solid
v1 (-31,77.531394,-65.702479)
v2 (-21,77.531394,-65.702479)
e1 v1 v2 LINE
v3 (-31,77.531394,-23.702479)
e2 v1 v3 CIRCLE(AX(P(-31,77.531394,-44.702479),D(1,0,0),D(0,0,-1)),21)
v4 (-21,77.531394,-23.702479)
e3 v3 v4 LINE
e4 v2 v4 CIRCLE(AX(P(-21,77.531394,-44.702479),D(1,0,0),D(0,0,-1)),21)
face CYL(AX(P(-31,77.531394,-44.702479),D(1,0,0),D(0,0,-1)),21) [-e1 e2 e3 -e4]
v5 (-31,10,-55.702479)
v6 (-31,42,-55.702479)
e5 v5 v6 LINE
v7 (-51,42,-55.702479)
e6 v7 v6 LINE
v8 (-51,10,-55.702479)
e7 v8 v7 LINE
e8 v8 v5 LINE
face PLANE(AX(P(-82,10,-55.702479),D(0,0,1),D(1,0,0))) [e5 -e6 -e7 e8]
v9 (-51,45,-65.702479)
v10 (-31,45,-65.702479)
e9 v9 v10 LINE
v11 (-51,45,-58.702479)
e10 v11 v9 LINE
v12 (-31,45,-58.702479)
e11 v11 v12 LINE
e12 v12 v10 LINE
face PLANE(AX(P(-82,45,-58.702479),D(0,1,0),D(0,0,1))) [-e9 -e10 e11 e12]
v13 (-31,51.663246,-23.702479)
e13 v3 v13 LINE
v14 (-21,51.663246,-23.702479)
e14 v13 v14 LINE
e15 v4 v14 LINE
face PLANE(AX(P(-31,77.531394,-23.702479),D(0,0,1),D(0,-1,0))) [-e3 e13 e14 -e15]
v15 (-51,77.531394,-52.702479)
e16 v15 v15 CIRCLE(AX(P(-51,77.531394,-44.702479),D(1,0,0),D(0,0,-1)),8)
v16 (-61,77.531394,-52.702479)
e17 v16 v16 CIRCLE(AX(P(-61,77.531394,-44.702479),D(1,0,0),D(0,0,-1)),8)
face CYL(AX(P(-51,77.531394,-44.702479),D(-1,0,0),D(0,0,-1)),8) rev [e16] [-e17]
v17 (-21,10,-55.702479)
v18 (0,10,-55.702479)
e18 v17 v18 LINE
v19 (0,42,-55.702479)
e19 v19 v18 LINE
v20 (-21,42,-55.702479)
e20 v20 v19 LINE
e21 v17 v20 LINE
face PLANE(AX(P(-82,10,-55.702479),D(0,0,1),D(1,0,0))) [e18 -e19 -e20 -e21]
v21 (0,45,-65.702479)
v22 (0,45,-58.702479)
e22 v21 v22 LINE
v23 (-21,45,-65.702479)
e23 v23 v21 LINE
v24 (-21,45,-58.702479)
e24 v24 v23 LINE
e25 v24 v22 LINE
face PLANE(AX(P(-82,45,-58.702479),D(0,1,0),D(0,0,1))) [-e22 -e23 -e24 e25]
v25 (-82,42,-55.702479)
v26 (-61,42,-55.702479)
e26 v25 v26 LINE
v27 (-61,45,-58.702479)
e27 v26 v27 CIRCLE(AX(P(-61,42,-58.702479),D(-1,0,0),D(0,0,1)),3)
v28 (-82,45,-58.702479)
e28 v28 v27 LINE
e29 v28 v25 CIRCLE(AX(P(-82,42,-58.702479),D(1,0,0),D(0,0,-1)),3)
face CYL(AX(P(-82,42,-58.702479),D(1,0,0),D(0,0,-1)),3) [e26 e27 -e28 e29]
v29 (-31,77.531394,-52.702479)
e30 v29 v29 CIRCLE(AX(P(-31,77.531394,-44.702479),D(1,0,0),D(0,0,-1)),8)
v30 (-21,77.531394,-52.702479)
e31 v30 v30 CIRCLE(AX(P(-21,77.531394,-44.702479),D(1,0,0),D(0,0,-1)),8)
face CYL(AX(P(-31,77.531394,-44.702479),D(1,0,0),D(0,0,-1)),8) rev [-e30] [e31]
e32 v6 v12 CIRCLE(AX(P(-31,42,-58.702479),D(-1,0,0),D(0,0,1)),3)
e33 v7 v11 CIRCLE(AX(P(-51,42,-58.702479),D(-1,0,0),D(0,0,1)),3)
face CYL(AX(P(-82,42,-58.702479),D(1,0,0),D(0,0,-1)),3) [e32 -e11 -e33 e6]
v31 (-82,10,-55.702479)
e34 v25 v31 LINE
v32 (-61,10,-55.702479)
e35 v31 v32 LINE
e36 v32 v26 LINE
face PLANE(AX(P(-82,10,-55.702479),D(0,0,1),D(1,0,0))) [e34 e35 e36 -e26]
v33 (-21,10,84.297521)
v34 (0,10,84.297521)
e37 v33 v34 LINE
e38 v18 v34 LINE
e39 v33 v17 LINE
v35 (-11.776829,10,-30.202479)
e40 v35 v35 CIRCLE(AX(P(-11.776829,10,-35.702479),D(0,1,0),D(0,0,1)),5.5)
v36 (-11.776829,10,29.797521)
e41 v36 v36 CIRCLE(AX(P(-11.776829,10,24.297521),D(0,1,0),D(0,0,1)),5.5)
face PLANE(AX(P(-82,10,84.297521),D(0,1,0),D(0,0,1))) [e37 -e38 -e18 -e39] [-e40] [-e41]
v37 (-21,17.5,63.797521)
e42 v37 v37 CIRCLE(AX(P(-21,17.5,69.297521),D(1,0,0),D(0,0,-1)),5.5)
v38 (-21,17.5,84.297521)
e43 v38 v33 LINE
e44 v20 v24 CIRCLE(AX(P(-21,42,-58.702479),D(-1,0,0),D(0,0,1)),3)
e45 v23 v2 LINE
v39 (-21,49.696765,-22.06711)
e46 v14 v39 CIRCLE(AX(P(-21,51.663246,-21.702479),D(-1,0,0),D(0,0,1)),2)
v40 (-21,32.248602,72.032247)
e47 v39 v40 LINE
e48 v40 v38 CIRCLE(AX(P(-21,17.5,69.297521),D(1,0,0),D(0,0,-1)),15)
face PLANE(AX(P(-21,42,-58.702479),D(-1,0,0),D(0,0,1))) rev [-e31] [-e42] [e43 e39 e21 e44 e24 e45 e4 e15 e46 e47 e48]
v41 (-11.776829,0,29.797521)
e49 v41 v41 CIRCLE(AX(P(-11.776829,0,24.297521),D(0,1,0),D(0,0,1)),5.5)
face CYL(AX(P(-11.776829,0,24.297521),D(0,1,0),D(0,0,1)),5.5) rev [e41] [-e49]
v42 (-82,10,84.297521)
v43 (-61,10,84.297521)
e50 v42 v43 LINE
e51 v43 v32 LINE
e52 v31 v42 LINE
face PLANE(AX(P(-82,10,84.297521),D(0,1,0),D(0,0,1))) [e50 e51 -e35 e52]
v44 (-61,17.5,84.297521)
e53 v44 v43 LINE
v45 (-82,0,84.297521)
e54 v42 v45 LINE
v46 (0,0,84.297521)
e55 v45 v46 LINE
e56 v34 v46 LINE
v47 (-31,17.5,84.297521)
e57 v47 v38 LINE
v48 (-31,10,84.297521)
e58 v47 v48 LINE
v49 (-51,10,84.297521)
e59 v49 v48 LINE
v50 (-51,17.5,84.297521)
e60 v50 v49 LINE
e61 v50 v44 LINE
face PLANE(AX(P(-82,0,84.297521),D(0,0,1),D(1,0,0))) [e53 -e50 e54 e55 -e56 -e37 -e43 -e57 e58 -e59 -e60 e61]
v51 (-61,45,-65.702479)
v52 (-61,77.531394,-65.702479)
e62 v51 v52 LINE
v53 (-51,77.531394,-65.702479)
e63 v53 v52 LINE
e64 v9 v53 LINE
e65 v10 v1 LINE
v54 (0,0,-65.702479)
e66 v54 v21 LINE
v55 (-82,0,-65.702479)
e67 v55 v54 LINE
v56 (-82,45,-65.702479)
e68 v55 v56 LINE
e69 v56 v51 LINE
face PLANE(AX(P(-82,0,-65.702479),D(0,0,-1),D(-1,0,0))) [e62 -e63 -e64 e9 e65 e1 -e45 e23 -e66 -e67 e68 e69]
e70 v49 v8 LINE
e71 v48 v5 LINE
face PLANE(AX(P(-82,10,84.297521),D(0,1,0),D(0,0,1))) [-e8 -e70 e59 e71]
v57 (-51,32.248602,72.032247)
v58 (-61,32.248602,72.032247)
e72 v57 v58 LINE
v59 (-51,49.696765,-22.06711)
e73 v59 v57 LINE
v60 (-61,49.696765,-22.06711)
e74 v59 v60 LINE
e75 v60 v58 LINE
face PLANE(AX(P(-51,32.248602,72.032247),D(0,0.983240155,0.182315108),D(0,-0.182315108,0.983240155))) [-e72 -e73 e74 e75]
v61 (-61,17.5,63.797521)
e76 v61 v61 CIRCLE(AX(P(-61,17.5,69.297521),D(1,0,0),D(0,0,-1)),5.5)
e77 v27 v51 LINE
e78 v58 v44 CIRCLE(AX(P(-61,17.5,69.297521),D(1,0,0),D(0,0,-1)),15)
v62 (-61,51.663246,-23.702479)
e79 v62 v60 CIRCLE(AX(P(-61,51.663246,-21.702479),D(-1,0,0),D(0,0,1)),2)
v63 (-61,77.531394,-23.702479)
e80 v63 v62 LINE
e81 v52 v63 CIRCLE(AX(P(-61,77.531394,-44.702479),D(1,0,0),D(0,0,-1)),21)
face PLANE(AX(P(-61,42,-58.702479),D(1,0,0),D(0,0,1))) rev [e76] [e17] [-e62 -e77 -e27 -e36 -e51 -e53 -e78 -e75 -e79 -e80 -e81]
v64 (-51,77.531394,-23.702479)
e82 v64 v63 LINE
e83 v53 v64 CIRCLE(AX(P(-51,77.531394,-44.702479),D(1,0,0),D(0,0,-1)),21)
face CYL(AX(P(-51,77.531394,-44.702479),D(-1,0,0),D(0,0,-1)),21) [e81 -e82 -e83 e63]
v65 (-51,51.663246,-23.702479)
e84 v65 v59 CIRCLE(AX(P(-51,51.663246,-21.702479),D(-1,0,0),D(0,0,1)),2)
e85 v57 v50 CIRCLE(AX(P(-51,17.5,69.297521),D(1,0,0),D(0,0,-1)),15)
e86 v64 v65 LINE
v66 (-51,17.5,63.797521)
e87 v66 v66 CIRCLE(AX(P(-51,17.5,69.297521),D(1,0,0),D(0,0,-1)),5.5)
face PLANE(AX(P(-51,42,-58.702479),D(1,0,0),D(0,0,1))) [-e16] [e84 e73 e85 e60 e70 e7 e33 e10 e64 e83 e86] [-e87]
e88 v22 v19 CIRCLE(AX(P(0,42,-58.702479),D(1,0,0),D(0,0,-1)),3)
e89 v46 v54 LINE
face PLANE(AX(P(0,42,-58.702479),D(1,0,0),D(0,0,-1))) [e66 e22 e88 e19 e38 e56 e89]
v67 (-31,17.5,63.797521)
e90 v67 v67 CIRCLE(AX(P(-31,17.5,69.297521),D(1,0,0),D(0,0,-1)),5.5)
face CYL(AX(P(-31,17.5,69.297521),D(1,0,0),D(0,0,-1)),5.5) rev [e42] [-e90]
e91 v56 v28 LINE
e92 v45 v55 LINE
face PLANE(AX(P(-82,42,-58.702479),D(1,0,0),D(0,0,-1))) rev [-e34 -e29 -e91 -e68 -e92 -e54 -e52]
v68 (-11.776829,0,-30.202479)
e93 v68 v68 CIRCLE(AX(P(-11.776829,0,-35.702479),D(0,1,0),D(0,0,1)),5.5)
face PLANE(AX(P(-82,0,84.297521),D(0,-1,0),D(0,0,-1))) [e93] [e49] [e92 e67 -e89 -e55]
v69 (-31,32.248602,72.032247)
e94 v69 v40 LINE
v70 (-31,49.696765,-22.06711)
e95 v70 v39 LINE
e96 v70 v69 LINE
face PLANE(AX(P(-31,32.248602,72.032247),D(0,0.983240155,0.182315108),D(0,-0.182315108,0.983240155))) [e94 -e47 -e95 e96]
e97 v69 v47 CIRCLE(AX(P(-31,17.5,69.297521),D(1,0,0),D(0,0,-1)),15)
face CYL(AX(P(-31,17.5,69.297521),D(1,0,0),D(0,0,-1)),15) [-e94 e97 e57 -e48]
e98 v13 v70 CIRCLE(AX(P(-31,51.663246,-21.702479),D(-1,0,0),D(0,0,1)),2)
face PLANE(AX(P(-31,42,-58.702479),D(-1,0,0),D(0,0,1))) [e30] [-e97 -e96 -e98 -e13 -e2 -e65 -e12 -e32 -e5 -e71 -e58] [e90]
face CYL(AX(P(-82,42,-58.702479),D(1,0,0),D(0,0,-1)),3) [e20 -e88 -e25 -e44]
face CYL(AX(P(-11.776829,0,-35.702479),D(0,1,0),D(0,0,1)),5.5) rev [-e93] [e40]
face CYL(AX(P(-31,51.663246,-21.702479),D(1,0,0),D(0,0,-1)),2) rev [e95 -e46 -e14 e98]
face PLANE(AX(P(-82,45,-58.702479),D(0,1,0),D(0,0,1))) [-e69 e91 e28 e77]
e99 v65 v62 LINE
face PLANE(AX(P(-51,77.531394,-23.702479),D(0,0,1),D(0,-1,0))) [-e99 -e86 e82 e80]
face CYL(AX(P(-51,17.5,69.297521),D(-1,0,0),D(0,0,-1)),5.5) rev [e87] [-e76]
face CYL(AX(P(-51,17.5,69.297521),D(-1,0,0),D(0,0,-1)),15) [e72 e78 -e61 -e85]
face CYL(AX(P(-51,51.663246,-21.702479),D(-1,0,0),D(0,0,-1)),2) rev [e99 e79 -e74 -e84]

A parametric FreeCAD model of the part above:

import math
import FreeCAD as App
import Part
import Sketcher
Q = App.Units.Quantity

doc = App.newDocument("Part")
body = doc.addObject("PartDesign::Body", "Body")

# Sketch on YZ plane
sketch1 = doc.addObject("Sketcher::SketchObject", "Sketch")
body.addObject(sketch1)
sketch1.AttachmentSupport = (doc.YZ_Plane, [""])
sketch1.MapMode = "FlatFace"
sketch1.addGeometry([
    Part.LineSegment(App.Vector(0, 84.3, 0), App.Vector(0, -65.7, 0)),  # 0
    Part.LineSegment(App.Vector(0, -65.7, 0), App.Vector(45, -65.7, 0)),  # 1
    Part.LineSegment(App.Vector(45, -65.7, 0), App.Vector(45, -58.7, 0)),  # 2
    Part.ArcOfCircle(Part.Circle(App.Vector(42, -58.7, 0), App.Vector(0, 0, 1), 3), math.radians(0), math.radians(90)),  # 3
    Part.LineSegment(App.Vector(42, -55.7, 0), App.Vector(10, -55.7, 0)),  # 4
    Part.LineSegment(App.Vector(10, -55.7, 0), App.Vector(10, 84.3, 0)),  # 5
    Part.LineSegment(App.Vector(10, 84.3, 0), App.Vector(0, 84.3, 0)),  # 6
], False)
sketch1.addConstraint([
    Sketcher.Constraint("Coincident", 0, 2, 1, 1),
    Sketcher.Constraint("Coincident", 1, 2, 2, 1),
    Sketcher.Constraint("Tangent", 2, 2, 3, 1),
    Sketcher.Constraint("Tangent", 3, 2, 4, 1),
    Sketcher.Constraint("Coincident", 4, 2, 5, 1),
    Sketcher.Constraint("Coincident", 5, 2, 6, 1),
    Sketcher.Constraint("Coincident", 6, 2, 0, 1),
    Sketcher.Constraint("Vertical", 0),
    Sketcher.Constraint("Horizontal", 1),
    Sketcher.Constraint("Vertical", 2),
    Sketcher.Constraint("Horizontal", 4),
    Sketcher.Constraint("Vertical", 5),
    Sketcher.Constraint("Horizontal", 6),
    Sketcher.Constraint("PointOnObject", 0, 2, -2),
    Sketcher.Constraint("Radius", 3, Q("3 mm")),
    Sketcher.Constraint("DistanceX", 1, 1, 1, 2, Q("45 mm")),
    Sketcher.Constraint("DistanceX", 4, 2, 4, 1, Q("32 mm")),
    Sketcher.Constraint("DistanceY", 0, 2, 0, 1, Q("150 mm")),
    Sketcher.Constraint("DistanceY", 2, 1, 2, 2, Q("7 mm")),
    Sketcher.Constraint("DistanceY", 3, 3, -1, 1, Q("58.702479 mm")),
])
pad1 = doc.addObject("PartDesign::Pad", "Pad")
body.addObject(pad1)
pad1.Profile = sketch1
pad1.Length = 82
pad1.Reversed = True

# Sketch on YZ plane
sketch2 = doc.addObject("Sketcher::SketchObject", "Sketch001")
body.addObject(sketch2)
sketch2.AttachmentSupport = (doc.YZ_Plane, [""])
sketch2.MapMode = "FlatFace"
sketch2.AttachmentOffset = App.Placement(App.Vector(0, 0, -21), App.Rotation())
sketch2.addGeometry([
    Part.LineSegment(App.Vector(45, -65.7, 0), App.Vector(77.5, -65.7, 0)),  # 0
    Part.ArcOfCircle(Part.Circle(App.Vector(77.5, -44.7, 0), App.Vector(0, 0, 1), 21), math.radians(-90), math.radians(90)),  # 1
    Part.LineSegment(App.Vector(77.5, -23.7, 0), App.Vector(51.7, -23.7, 0)),  # 2
    Part.ArcOfCircle(Part.Circle(App.Vector(51.7, -21.7, 0), App.Vector(0, 0, 1), 2), math.radians(-169), math.radians(-90)),  # 3
    Part.LineSegment(App.Vector(49.7, -22.1, 0), App.Vector(32.2, 72, 0)),  # 4
    Part.ArcOfCircle(Part.Circle(App.Vector(17.5, 69.3, 0), App.Vector(0, 0, 1), 15), math.radians(11), math.radians(90)),  # 5
    Part.LineSegment(App.Vector(17.5, 84.3, 0), App.Vector(10, 84.3, 0)),  # 6
    Part.LineSegment(App.Vector(10, 84.3, 0), App.Vector(10, -55.7, 0)),  # 7
    Part.LineSegment(App.Vector(10, -55.7, 0), App.Vector(42, -55.7, 0)),  # 8
    Part.ArcOfCircle(Part.Circle(App.Vector(42, -58.7, 0), App.Vector(0, 0, 1), 3), math.radians(0), math.radians(90)),  # 9
    Part.LineSegment(App.Vector(45, -58.7, 0), App.Vector(45, -65.7, 0)),  # 10
    Part.Circle(App.Vector(17.5, 69.3, 0), App.Vector(0, 0, 1), 5.5),  # 11
    Part.Circle(App.Vector(77.5, -44.7, 0), App.Vector(0, 0, 1), 8),  # 12
], False)
sketch2.addConstraint([
    Sketcher.Constraint("Tangent", 0, 2, 1, 1),
    Sketcher.Constraint("Tangent", 1, 2, 2, 1),
    Sketcher.Constraint("Tangent", 2, 2, 3, 2),
    Sketcher.Constraint("Tangent", 3, 1, 4, 1),
    Sketcher.Constraint("Tangent", 4, 2, 5, 1),
    Sketcher.Constraint("Tangent", 5, 2, 6, 1),
    Sketcher.Constraint("Coincident", 6, 2, 7, 1),
    Sketcher.Constraint("Coincident", 7, 2, 8, 1),
    Sketcher.Constraint("Tangent", 8, 2, 9, 2),
    Sketcher.Constraint("Tangent", 9, 1, 10, 1),
    Sketcher.Constraint("Coincident", 10, 2, 0, 1),
    Sketcher.Constraint("Horizontal", 0),
    Sketcher.Constraint("Horizontal", 2),
    Sketcher.Constraint("Horizontal", 6),
    Sketcher.Constraint("Vertical", 7),
    Sketcher.Constraint("Horizontal", 8),
    Sketcher.Constraint("Vertical", 10),
    Sketcher.Constraint("Coincident", 11, 3, 5, 3),
    Sketcher.Constraint("Coincident", 12, 3, 1, 3),
    Sketcher.Constraint("Diameter", 11, Q("11 mm")),
    Sketcher.Constraint("Diameter", 12, Q("16 mm")),
    Sketcher.Constraint("Radius", 1, Q("21 mm")),
    Sketcher.Constraint("Radius", 3, Q("2 mm")),
    Sketcher.Constraint("Radius", 5, Q("15 mm")),
    Sketcher.Constraint("Radius", 9, Q("3 mm")),
    Sketcher.Constraint("DistanceX", 8, 1, 8, 2, Q("32 mm")),
    Sketcher.Constraint("DistanceY", 7, 2, 7, 1, Q("140 mm")),
    Sketcher.Constraint("DistanceY", 10, 2, 10, 1, Q("7 mm")),
    Sketcher.Constraint("DistanceX", 6, 2, 6, 1, Q("7.5 mm")),
    Sketcher.Constraint("DistanceX", -1, 1, 9, 3, Q("42 mm")),
    Sketcher.Constraint("DistanceX", 2, 2, 2, 1, Q("25.868149 mm")),
    Sketcher.Constraint("Distance", 4, Q("95.70333 mm")),
    Sketcher.Constraint("DistanceY", 1, 3, -1, 1, Q("44.702479 mm")),
])
pad2 = doc.addObject("PartDesign::Pad", "Pad001")
body.addObject(pad2)
pad2.Profile = sketch2
pad2.Length = 10
pad2.Reversed = True
body2 = doc.addObject("PartDesign::Body", "Body001")
doc.recompute()

body2.BaseFeature = body
doc.recompute()

mirroring = doc.addObject("Part::Mirroring", "Mirroring")
mirroring.Source = body
mirroring.Base = App.Vector(-41, 0, 0)
mirroring.Normal = App.Vector(1, 0, 0)
body3 = doc.addObject("PartDesign::Body", "Body002")
body3.BaseFeature = mirroring
boolean = doc.addObject("PartDesign::Boolean", "Boolean")
body2.addObject(boolean)
boolean.Type = "Fuse"
boolean.addObjects([body3])
doc.recompute()

# Sketch on XZ plane
sketch3 = doc.addObject("Sketcher::SketchObject", "Sketch002")
body2.addObject(sketch3)
sketch3.AttachmentSupport = (doc.getObject("XZ_Plane001"), [""])
sketch3.MapMode = "FlatFace"
sketch3.AttachmentOffset = App.Placement(App.Vector(0, 0, -10), App.Rotation())
sketch3.addGeometry([
    Part.Circle(App.Vector(-12, 24, 0), App.Vector(0, 0, 1), 6),
    Part.Circle(App.Vector(-12, -36, 0), App.Vector(0, 0, 1), 6),
], False)
sketch3.addConstraint([
    Sketcher.Constraint("Equal", 0, 1),
    Sketcher.Constraint("Vertical", 0, 3, 1, 3),
    Sketcher.Constraint("Diameter", 0, Q("11 mm")),
    Sketcher.Constraint("DistanceY", 1, 3, 0, 3, Q("60 mm")),
    Sketcher.Constraint("DistanceX", 0, 3, -1, 1, Q("11.776829 mm")),
    Sketcher.Constraint("DistanceY", -1, 1, 0, 3, Q("24.297521 mm")),
])
pocket1 = doc.addObject("PartDesign::Pocket", "Pocket")
body2.addObject(pocket1)
pocket1.Profile = sketch3
pocket1.Type = "ThroughAll"
pocket1.Reversed = True
mirroring.Visibility = False

doc.recompute()
